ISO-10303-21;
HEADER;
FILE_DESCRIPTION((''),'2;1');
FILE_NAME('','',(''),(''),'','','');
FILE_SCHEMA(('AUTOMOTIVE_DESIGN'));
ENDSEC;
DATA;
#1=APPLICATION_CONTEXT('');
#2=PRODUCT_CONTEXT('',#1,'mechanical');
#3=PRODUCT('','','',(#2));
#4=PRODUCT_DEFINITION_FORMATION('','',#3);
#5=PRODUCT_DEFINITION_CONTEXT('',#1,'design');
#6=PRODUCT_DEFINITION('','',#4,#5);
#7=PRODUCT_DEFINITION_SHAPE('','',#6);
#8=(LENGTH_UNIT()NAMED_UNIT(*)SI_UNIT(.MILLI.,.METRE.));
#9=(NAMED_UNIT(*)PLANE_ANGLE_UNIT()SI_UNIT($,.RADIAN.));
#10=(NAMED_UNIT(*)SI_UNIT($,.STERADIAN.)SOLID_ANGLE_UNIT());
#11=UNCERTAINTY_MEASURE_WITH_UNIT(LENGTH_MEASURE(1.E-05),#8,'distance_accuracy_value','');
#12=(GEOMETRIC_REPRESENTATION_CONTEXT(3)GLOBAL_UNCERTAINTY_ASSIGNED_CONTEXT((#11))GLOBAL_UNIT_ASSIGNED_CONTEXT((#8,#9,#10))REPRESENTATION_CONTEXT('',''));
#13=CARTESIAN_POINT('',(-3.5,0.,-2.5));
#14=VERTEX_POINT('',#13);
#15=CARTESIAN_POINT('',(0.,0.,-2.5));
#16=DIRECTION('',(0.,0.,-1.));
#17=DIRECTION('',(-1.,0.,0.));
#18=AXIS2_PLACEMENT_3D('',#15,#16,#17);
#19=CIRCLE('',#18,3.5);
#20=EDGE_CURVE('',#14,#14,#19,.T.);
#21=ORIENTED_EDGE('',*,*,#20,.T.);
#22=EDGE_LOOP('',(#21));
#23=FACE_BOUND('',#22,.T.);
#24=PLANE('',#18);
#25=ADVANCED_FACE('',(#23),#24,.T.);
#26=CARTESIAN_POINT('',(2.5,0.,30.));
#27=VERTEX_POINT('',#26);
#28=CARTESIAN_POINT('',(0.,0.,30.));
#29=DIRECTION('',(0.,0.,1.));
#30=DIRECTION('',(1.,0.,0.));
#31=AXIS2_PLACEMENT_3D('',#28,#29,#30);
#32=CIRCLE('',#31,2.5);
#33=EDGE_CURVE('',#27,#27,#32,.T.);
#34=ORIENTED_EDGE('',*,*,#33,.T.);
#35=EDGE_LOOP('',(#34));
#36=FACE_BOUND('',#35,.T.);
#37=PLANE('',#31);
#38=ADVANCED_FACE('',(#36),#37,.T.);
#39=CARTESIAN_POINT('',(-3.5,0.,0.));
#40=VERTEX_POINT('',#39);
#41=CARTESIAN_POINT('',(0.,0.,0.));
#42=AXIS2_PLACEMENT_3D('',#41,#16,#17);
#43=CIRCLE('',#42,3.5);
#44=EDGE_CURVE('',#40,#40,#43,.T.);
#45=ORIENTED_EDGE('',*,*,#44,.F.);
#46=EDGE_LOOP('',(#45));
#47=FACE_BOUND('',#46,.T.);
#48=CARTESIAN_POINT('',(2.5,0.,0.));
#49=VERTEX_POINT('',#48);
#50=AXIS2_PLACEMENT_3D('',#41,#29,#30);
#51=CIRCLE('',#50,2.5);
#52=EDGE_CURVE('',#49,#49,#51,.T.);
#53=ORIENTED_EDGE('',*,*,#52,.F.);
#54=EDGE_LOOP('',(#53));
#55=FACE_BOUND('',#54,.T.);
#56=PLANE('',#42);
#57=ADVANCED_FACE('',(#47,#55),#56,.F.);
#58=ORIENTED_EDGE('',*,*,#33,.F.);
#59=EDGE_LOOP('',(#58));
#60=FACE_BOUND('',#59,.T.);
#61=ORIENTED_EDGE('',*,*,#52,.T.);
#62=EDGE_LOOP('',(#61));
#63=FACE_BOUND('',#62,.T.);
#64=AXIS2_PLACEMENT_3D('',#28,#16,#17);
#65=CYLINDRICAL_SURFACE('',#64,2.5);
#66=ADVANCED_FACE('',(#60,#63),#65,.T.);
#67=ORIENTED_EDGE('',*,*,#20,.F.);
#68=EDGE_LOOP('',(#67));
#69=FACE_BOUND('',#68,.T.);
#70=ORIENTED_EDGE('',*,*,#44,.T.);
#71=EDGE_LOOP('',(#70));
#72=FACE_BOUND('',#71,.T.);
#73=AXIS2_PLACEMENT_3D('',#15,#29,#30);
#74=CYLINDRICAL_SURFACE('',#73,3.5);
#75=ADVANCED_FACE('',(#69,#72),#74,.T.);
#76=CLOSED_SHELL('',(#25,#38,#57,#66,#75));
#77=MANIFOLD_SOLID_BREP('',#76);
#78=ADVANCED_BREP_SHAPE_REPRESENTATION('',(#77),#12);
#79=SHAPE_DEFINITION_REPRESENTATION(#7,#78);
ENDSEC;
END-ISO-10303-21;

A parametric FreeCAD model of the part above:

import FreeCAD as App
import Part
import Sketcher
from FreeCAD import Vector

doc = App.newDocument("Part")
params = doc.addObject("Spreadsheet::Sheet", "Params")
for row, (alias, value) in enumerate([
    ("sketch1_diameter", "5 mm"),
    ("pad1_length", "30 mm"),
    ("sketch2_diameter", "7 mm"),
    ("pad2_length", "2.5 mm"),
], start=1):
    params.set(f"A{row}", alias)
    params.set(f"B{row}", "=" + value)
    params.setAlias(f"B{row}", alias)

body = doc.addObject("PartDesign::Body", "Body")

# Sketch on XY plane
sketch1 = doc.addObject("Sketcher::SketchObject", "Sketch")
body.addObject(sketch1)
sketch1.AttachmentSupport = (doc.XY_Plane, [""])
sketch1.MapMode = "FlatFace"
sketch1.addGeometry(Part.Circle(Vector(0, 0, 0), Vector(0, 0, 1), 2.5), False)
sketch1.addConstraint([
    Sketcher.Constraint("Coincident", 0, 3, -1, 1),
    Sketcher.Constraint("Diameter", 0, 5.0),
])
sketch1.setExpression("Constraints[1]", "Params.sketch1_diameter")
pad1 = doc.addObject("PartDesign::Pad", "Pad")
body.addObject(pad1)
pad1.Profile = sketch1
pad1.setExpression("Length", "Params.pad1_length")

# Sketch on XY plane
sketch2 = doc.addObject("Sketcher::SketchObject", "Sketch001")
body.addObject(sketch2)
sketch2.AttachmentSupport = (doc.XY_Plane, [""])
sketch2.MapMode = "FlatFace"
sketch2.addGeometry(Part.Circle(Vector(0, 0, 0), Vector(0, 0, 1), 3.5), False)
sketch2.addConstraint([
    Sketcher.Constraint("Coincident", 0, 3, -1, 1),
    Sketcher.Constraint("Diameter", 0, 7.0),
])
sketch2.setExpression("Constraints[1]", "Params.sketch2_diameter")
pad2 = doc.addObject("PartDesign::Pad", "Pad001")
body.addObject(pad2)
pad2.Profile = sketch2
pad2.setExpression("Length", "Params.pad2_length")
pad2.Reversed = True

doc.recompute()
